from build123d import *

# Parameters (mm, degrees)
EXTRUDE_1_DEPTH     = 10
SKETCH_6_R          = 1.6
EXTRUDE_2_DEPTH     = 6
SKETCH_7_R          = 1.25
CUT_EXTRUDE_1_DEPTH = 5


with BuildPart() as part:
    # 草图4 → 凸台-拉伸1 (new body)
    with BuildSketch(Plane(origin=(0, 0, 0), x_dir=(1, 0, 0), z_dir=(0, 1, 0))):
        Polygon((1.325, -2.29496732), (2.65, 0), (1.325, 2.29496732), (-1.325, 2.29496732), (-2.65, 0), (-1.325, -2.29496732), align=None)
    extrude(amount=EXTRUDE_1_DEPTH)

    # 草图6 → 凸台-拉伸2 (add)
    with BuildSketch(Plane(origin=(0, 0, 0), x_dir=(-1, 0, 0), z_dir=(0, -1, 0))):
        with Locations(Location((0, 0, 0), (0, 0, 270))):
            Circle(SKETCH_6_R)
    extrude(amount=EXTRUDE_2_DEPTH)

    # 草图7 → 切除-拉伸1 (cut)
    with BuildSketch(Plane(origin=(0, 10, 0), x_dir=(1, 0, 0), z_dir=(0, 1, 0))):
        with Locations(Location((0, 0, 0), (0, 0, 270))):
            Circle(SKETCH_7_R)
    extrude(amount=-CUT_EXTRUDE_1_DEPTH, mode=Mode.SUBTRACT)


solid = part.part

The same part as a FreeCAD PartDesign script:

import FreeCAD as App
import Part
import Sketcher
Q = App.Units.Quantity

doc = App.newDocument("Part")
body = doc.addObject("PartDesign::Body", "Body")

sketch1 = body.newObject("Sketcher::SketchObject", "Sketch")
sketch1.AttachmentSupport = (doc.getObject("XZ_Plane"), [""])
sketch1.MapMode = "FlatFace"
sketch1.addGeometry(Part.LineSegment(App.Vector(1.325, 2.294967, 0), App.Vector(2.65, 0, 0)), False)
sketch1.addGeometry(Part.LineSegment(App.Vector(2.65, 0, 0), App.Vector(1.325, -2.294967, 0)), False)
sketch1.addGeometry(Part.LineSegment(App.Vector(1.325, -2.294967, 0), App.Vector(-1.325, -2.294967, 0)), False)
sketch1.addGeometry(Part.LineSegment(App.Vector(-1.325, -2.294967, 0), App.Vector(-2.65, 0, 0)), False)
sketch1.addGeometry(Part.LineSegment(App.Vector(-2.65, 0, 0), App.Vector(-1.325, 2.294967, 0)), False)
sketch1.addGeometry(Part.LineSegment(App.Vector(-1.325, 2.294967, 0), App.Vector(1.325, 2.294967, 0)), False)
sketch1.addConstraint(Sketcher.Constraint("Coincident", 0, 2, 1, 1))
sketch1.addConstraint(Sketcher.Constraint("Coincident", 1, 2, 2, 1))
sketch1.addConstraint(Sketcher.Constraint("Coincident", 2, 2, 3, 1))
sketch1.addConstraint(Sketcher.Constraint("Coincident", 3, 2, 4, 1))
sketch1.addConstraint(Sketcher.Constraint("Coincident", 4, 2, 5, 1))
sketch1.addConstraint(Sketcher.Constraint("Coincident", 5, 2, 0, 1))
sketch1.addConstraint(Sketcher.Constraint("Horizontal", 2))
sketch1.addConstraint(Sketcher.Constraint("Horizontal", 5))
sketch1.addConstraint(Sketcher.Constraint("Symmetric", 0, 2, 3, 2, -1, 1))
sketch1.addConstraint(Sketcher.Constraint("Symmetric", 1, 2, 4, 2, -1, 1))
sketch1.addConstraint(Sketcher.Constraint("PointOnObject", 0, 2, -1))
sketch1.addConstraint(Sketcher.Constraint("Parallel", 0, 3))
sketch1.addConstraint(Sketcher.Constraint("Vertical", 2, 2, 4, 2))
sketch1.addConstraint(Sketcher.Constraint("Angle", 0, Q("-60 deg")))
sketch1.addConstraint(Sketcher.Constraint("DistanceX", 2, 2, 2, 1, Q("2.65 mm")))
sketch1.addConstraint(Sketcher.Constraint("DistanceX", 3, 2, 0, 2, Q("5.3 mm")))
pad1 = body.newObject("PartDesign::Pad", "Pad")
pad1.Profile = sketch1
pad1.Length = 10
pad1.Reversed = True

sketch2 = body.newObject("Sketcher::SketchObject", "Sketch001")
sketch2.AttachmentSupport = (doc.getObject("XZ_Plane"), [""])
sketch2.MapMode = "FlatFace"
sketch2.addGeometry(Part.Circle(App.Vector(0, 0, 0), App.Vector(0, 0, 1), 1.6), False)
sketch2.addConstraint(Sketcher.Constraint("Coincident", 0, 3, -1, 1))
sketch2.addConstraint(Sketcher.Constraint("Diameter", 0, Q("3.2 mm")))
pad2 = body.newObject("PartDesign::Pad", "Pad001")
pad2.Profile = sketch2
pad2.Length = 6

sketch3 = body.newObject("Sketcher::SketchObject", "Sketch002")
sketch3.AttachmentSupport = (doc.getObject("XZ_Plane"), [""])
sketch3.MapMode = "FlatFace"
sketch3.AttachmentOffset = App.Placement(App.Vector(0, 0, -10), App.Rotation())
sketch3.addGeometry(Part.Circle(App.Vector(0, 0, 0), App.Vector(0, 0, 1), 1.25), False)
sketch3.addConstraint(Sketcher.Constraint("Coincident", 0, 3, -1, 1))
sketch3.addConstraint(Sketcher.Constraint("Diameter", 0, Q("2.5 mm")))
pocket1 = body.newObject("PartDesign::Pocket", "Pocket")
pocket1.Profile = sketch3
pocket1.Length = 5
pocket1.Reversed = True

doc.recompute()
